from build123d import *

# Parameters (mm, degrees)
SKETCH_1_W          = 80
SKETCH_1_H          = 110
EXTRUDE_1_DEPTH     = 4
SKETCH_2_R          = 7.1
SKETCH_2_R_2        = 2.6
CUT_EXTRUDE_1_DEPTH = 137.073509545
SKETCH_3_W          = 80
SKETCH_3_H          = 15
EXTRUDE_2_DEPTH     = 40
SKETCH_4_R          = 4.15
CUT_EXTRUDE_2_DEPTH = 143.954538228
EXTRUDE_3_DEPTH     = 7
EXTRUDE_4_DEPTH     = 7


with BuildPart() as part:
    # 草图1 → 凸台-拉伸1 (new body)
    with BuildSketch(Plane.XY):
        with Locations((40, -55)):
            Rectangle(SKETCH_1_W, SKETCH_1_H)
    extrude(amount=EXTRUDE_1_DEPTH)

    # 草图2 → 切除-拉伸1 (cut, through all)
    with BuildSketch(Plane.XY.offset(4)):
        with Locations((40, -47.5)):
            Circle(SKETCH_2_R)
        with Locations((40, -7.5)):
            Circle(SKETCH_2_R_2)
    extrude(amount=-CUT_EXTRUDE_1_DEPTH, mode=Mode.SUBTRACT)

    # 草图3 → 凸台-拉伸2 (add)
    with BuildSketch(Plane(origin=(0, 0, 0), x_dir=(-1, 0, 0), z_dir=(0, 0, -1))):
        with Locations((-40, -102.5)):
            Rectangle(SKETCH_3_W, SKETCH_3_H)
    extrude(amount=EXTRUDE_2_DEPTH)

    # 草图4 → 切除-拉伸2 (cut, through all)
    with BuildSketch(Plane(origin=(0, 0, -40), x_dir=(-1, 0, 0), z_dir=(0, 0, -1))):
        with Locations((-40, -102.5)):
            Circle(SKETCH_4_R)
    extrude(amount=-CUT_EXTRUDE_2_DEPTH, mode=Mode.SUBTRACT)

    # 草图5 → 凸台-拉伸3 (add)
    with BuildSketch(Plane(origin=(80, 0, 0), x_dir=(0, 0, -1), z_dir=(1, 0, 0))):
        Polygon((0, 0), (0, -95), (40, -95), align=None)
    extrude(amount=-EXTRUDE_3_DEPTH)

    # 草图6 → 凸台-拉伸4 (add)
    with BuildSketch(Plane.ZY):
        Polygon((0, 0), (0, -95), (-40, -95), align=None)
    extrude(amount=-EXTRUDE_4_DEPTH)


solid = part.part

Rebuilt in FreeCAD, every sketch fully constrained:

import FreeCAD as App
import Part
import Sketcher
from FreeCAD import Vector
Q = App.Units.Quantity


def add_polygon(sketch, points):
    """Adds a closed chain of lines whose ends are joined by coincident constraints."""
    first, n = sketch.GeometryCount, len(points)
    for a, b in zip(points, points[1:] + points[:1]):
        sketch.addGeometry(Part.LineSegment(App.Vector(*a, 0), App.Vector(*b, 0)), False)
    for i in range(n):
        sketch.addConstraint(Sketcher.Constraint("Coincident", first + i, 2, first + (i + 1) % n, 1))

doc = App.newDocument("Part")
body = doc.addObject("PartDesign::Body", "Body")

sketch1 = body.newObject("Sketcher::SketchObject", "Sketch")
sketch1.AttachmentSupport = (doc.getObject("XY_Plane"), [""])
sketch1.MapMode = "FlatFace"
add_polygon(sketch1, [(0, 0), (0, -110), (80, -110), (80, 0)])
sketch1.addConstraint(Sketcher.Constraint("Vertical", 0))
sketch1.addConstraint(Sketcher.Constraint("Horizontal", 1))
sketch1.addConstraint(Sketcher.Constraint("Vertical", 2))
sketch1.addConstraint(Sketcher.Constraint("Horizontal", 3))
sketch1.addConstraint(Sketcher.Constraint("Coincident", 3, 2, -1, 1))
sketch1.addConstraint(Sketcher.Constraint("DistanceX", 1, 1, 1, 2, Q("80 mm")))
sketch1.addConstraint(Sketcher.Constraint("DistanceY", 0, 2, 0, 1, Q("110 mm")))
pad1 = body.newObject("PartDesign::Pad", "Pad")
pad1.Profile = sketch1
pad1.Length = 4

sketch2 = body.newObject("Sketcher::SketchObject", "Sketch001")
sketch2.AttachmentSupport = (doc.getObject("XY_Plane"), [""])
sketch2.MapMode = "FlatFace"
sketch2.AttachmentOffset = App.Placement(Vector(0, 0, 4), App.Rotation())
sketch2.addGeometry(Part.Circle(Vector(40, -47.5, 0), Vector(0, 0, 1), 7.1), False)
sketch2.addGeometry(Part.Circle(Vector(40, -7.5, 0), Vector(0, 0, 1), 2.6), False)
sketch2.addConstraint(Sketcher.Constraint("Vertical", 0, 3, 1, 3))
sketch2.addConstraint(Sketcher.Constraint("Diameter", 0, Q("14.2 mm")))
sketch2.addConstraint(Sketcher.Constraint("Diameter", 1, Q("5.2 mm")))
sketch2.addConstraint(Sketcher.Constraint("DistanceX", -1, 1, 0, 3, Q("40 mm")))
sketch2.addConstraint(Sketcher.Constraint("DistanceY", 0, 3, 1, 3, Q("40 mm")))
sketch2.addConstraint(Sketcher.Constraint("DistanceY", 0, 3, -1, 1, Q("47.5 mm")))
pocket1 = body.newObject("PartDesign::Pocket", "Pocket")
pocket1.Profile = sketch2
pocket1.Type = "ThroughAll"

sketch3 = body.newObject("Sketcher::SketchObject", "Sketch002")
sketch3.AttachmentSupport = (doc.getObject("XY_Plane"), [""])
sketch3.MapMode = "FlatFace"
add_polygon(sketch3, [(80, -95), (80, -110), (0, -110), (0, -95)])
sketch3.addConstraint(Sketcher.Constraint("Vertical", 0))
sketch3.addConstraint(Sketcher.Constraint("Horizontal", 1))
sketch3.addConstraint(Sketcher.Constraint("Vertical", 2))
sketch3.addConstraint(Sketcher.Constraint("Horizontal", 3))
sketch3.addConstraint(Sketcher.Constraint("PointOnObject", 1, 2, -2))
sketch3.addConstraint(Sketcher.Constraint("DistanceX", 1, 2, 1, 1, Q("80 mm")))
sketch3.addConstraint(Sketcher.Constraint("DistanceY", 0, 2, 0, 1, Q("15 mm")))
sketch3.addConstraint(Sketcher.Constraint("DistanceY", 0, 2, -1, 1, Q("110 mm")))
pad2 = body.newObject("PartDesign::Pad", "Pad001")
pad2.Profile = sketch3
pad2.Length = 40
pad2.Reversed = True

sketch4 = body.newObject("Sketcher::SketchObject", "Sketch003")
sketch4.AttachmentSupport = (doc.getObject("XY_Plane"), [""])
sketch4.MapMode = "FlatFace"
sketch4.AttachmentOffset = App.Placement(Vector(0, 0, -40), App.Rotation())
sketch4.addGeometry(Part.Circle(Vector(40, -102.5, 0), Vector(0, 0, 1), 4.2), False)
sketch4.addConstraint(Sketcher.Constraint("Diameter", 0, Q("8.3 mm")))
sketch4.addConstraint(Sketcher.Constraint("DistanceX", -1, 1, 0, 3, Q("40 mm")))
sketch4.addConstraint(Sketcher.Constraint("DistanceY", 0, 3, -1, 1, Q("102.5 mm")))
pocket2 = body.newObject("PartDesign::Pocket", "Pocket001")
pocket2.Profile = sketch4
pocket2.Type = "ThroughAll"
pocket2.Reversed = True

sketch5 = body.newObject("Sketcher::SketchObject", "Sketch004")
sketch5.AttachmentSupport = (doc.getObject("YZ_Plane"), [""])
sketch5.MapMode = "FlatFace"
sketch5.AttachmentOffset = App.Placement(Vector(0, 0, 80), App.Rotation())
add_polygon(sketch5, [(0, 0), (-95, 0), (-95, -40)])
sketch5.addConstraint(Sketcher.Constraint("Horizontal", 0))
sketch5.addConstraint(Sketcher.Constraint("Vertical", 1))
sketch5.addConstraint(Sketcher.Constraint("Coincident", 2, 2, -1, 1))
sketch5.addConstraint(Sketcher.Constraint("DistanceX", 0, 2, 0, 1, Q("95 mm")))
sketch5.addConstraint(Sketcher.Constraint("DistanceY", 1, 2, 1, 1, Q("40 mm")))
pad3 = body.newObject("PartDesign::Pad", "Pad002")
pad3.Profile = sketch5
pad3.Length = 7
pad3.Reversed = True

sketch6 = body.newObject("Sketcher::SketchObject", "Sketch005")
sketch6.AttachmentSupport = (doc.getObject("YZ_Plane"), [""])
sketch6.MapMode = "FlatFace"
add_polygon(sketch6, [(-95, 0), (0, 0), (-95, -40)])
sketch6.addConstraint(Sketcher.Constraint("Horizontal", 0))
sketch6.addConstraint(Sketcher.Constraint("Vertical", 2))
sketch6.addConstraint(Sketcher.Constraint("Coincident", 0, 2, -1, 1))
sketch6.addConstraint(Sketcher.Constraint("DistanceX", 0, 1, 0, 2, Q("95 mm")))
sketch6.addConstraint(Sketcher.Constraint("DistanceY", 2, 1, 2, 2, Q("40 mm")))
pad4 = body.newObject("PartDesign::Pad", "Pad003")
pad4.Profile = sketch6
pad4.Length = 7

doc.recompute()
